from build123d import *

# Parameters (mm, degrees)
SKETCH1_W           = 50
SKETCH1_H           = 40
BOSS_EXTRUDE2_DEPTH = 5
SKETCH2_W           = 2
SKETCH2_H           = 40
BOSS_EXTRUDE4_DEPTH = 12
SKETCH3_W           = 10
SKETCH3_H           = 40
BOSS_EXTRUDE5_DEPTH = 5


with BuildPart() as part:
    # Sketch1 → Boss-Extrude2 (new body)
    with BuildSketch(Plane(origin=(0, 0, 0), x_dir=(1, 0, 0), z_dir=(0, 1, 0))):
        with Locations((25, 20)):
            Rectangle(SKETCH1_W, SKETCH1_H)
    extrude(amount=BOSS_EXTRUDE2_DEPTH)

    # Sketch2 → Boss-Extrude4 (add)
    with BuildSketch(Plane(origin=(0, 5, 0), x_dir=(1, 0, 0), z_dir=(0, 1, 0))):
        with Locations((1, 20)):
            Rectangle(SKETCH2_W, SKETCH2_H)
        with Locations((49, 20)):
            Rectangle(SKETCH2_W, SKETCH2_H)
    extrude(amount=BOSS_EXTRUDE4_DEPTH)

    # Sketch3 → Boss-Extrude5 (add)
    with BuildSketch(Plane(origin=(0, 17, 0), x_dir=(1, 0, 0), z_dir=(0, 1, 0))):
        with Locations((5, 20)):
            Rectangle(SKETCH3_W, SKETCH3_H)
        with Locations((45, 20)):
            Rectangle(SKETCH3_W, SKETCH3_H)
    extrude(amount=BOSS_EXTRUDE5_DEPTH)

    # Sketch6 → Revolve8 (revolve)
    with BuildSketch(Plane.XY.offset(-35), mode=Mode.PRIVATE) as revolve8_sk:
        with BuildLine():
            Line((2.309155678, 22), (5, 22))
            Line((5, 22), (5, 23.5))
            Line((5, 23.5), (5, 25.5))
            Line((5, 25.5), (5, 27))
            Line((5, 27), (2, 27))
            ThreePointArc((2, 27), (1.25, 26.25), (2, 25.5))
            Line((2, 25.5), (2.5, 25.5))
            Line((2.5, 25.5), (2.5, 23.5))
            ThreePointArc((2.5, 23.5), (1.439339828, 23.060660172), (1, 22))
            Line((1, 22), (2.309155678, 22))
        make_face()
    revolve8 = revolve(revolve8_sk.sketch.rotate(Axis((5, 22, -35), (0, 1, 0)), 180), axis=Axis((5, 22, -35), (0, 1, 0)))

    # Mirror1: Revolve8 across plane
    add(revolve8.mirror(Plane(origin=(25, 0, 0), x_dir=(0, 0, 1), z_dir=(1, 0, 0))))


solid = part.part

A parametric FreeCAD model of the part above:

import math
import FreeCAD as App
import Part
import Sketcher

doc = App.newDocument("Part")
params = doc.addObject("Spreadsheet::Sheet", "Params")
for row, (alias, value) in enumerate([
    ("sketch1_width", "50 mm"),
    ("sketch1_height", "40 mm"),
    ("pad1_length", "5 mm"),
    ("sketch2_width", "2 mm"),
    ("sketch2_height", "40 mm"),
    ("pad2_length", "12 mm"),
    ("sketch3_width", "10 mm"),
    ("sketch3_height", "40 mm"),
    ("pad3_length", "5 mm"),
    ("sketch4_radius", "1.5 mm"),
    ("sketch4_width", "3 mm"),
    ("sketch4_width2", "4 mm"),
    ("sketch4_height", "5 mm"),
    ("sketch4_height2", "2 mm"),
    ("revolution_angle", "360 deg"),
], start=1):
    params.set(f"A{row}", alias)
    params.set(f"B{row}", "=" + value)
    params.setAlias(f"B{row}", alias)

body = doc.addObject("PartDesign::Body", "Body")

# Sketch on XZ plane
sketch1 = body.newObject("Sketcher::SketchObject", "Sketch")
sketch1.AttachmentSupport = (doc.getObject("XZ_Plane"), [""])
sketch1.MapMode = "FlatFace"
sketch1.addGeometry([
    Part.LineSegment(App.Vector(0, -40, 0), App.Vector(0, 0, 0)),
    Part.LineSegment(App.Vector(0, 0, 0), App.Vector(50, 0, 0)),
    Part.LineSegment(App.Vector(50, 0, 0), App.Vector(50, -40, 0)),
    Part.LineSegment(App.Vector(50, -40, 0), App.Vector(0, -40, 0)),
], False)
sketch1.addConstraint([
    Sketcher.Constraint("Coincident", 0, 2, 1, 1),
    Sketcher.Constraint("Coincident", 1, 2, 2, 1),
    Sketcher.Constraint("Coincident", 2, 2, 3, 1),
    Sketcher.Constraint("Coincident", 3, 2, 0, 1),
    Sketcher.Constraint("Vertical", 0),
    Sketcher.Constraint("Horizontal", 1),
    Sketcher.Constraint("Vertical", 2),
    Sketcher.Constraint("Horizontal", 3),
    Sketcher.Constraint("Coincident", 0, 2, -1, 1),
    Sketcher.Constraint("DistanceX", 1, 1, 1, 2, 50.0),
    Sketcher.Constraint("DistanceY", 0, 1, 0, 2, 40.0),
])
sketch1.setExpression("Constraints[9]", "Params.sketch1_width")
sketch1.setExpression("Constraints[10]", "Params.sketch1_height")
pad1 = body.newObject("PartDesign::Pad", "Pad")
pad1.Profile = sketch1
pad1.setExpression("Length", "Params.pad1_length")
pad1.Reversed = True

# Sketch on XZ plane
sketch2 = body.newObject("Sketcher::SketchObject", "Sketch001")
sketch2.AttachmentSupport = (doc.getObject("XZ_Plane"), [""])
sketch2.MapMode = "FlatFace"
sketch2.AttachmentOffset = App.Placement(App.Vector(0, 0, -5), App.Rotation())
sketch2.addGeometry([
    Part.LineSegment(App.Vector(0, -40, 0), App.Vector(0, 0, 0)),  # 0
    Part.LineSegment(App.Vector(0, 0, 0), App.Vector(2, 0, 0)),  # 1
    Part.LineSegment(App.Vector(2, 0, 0), App.Vector(2, -40, 0)),  # 2
    Part.LineSegment(App.Vector(2, -40, 0), App.Vector(0, -40, 0)),  # 3
    Part.LineSegment(App.Vector(48, -40, 0), App.Vector(48, 0, 0)),  # 4
    Part.LineSegment(App.Vector(48, 0, 0), App.Vector(50, 0, 0)),  # 5
    Part.LineSegment(App.Vector(50, 0, 0), App.Vector(50, -40, 0)),  # 6
    Part.LineSegment(App.Vector(50, -40, 0), App.Vector(48, -40, 0)),  # 7
], False)
sketch2.addConstraint([
    Sketcher.Constraint("Coincident", 0, 2, 1, 1),
    Sketcher.Constraint("Coincident", 1, 2, 2, 1),
    Sketcher.Constraint("Coincident", 2, 2, 3, 1),
    Sketcher.Constraint("Coincident", 3, 2, 0, 1),
    Sketcher.Constraint("Coincident", 4, 2, 5, 1),
    Sketcher.Constraint("Coincident", 5, 2, 6, 1),
    Sketcher.Constraint("Coincident", 6, 2, 7, 1),
    Sketcher.Constraint("Coincident", 7, 2, 4, 1),
    Sketcher.Constraint("Vertical", 0),
    Sketcher.Constraint("Horizontal", 1),
    Sketcher.Constraint("Vertical", 2),
    Sketcher.Constraint("Horizontal", 3),
    Sketcher.Constraint("Vertical", 4),
    Sketcher.Constraint("Horizontal", 5),
    Sketcher.Constraint("Vertical", 6),
    Sketcher.Constraint("Horizontal", 7),
    Sketcher.Constraint("Coincident", 0, 2, -1, 1),
    Sketcher.Constraint("PointOnObject", 4, 2, -1),
    Sketcher.Constraint("Horizontal", 3, 2, 6, 2),
    Sketcher.Constraint("Equal", 3, 5),
    Sketcher.Constraint("DistanceX", 1, 1, 1, 2, 2.0),
    Sketcher.Constraint("DistanceY", 0, 1, 0, 2, 40.0),
    Sketcher.Constraint("DistanceX", -1, 1, 4, 2, 48.0),
])
sketch2.setExpression("Constraints[20]", "Params.sketch2_width")
sketch2.setExpression("Constraints[21]", "Params.sketch2_height")
pad2 = body.newObject("PartDesign::Pad", "Pad001")
pad2.Profile = sketch2
pad2.setExpression("Length", "Params.pad2_length")
pad2.Reversed = True

# Sketch on XZ plane
sketch3 = body.newObject("Sketcher::SketchObject", "Sketch002")
sketch3.AttachmentSupport = (doc.getObject("XZ_Plane"), [""])
sketch3.MapMode = "FlatFace"
sketch3.AttachmentOffset = App.Placement(App.Vector(0, 0, -17), App.Rotation())
sketch3.addGeometry([
    Part.LineSegment(App.Vector(0, -40, 0), App.Vector(0, 0, 0)),  # 0
    Part.LineSegment(App.Vector(0, 0, 0), App.Vector(10, 0, 0)),  # 1
    Part.LineSegment(App.Vector(10, 0, 0), App.Vector(10, -40, 0)),  # 2
    Part.LineSegment(App.Vector(10, -40, 0), App.Vector(0, -40, 0)),  # 3
    Part.LineSegment(App.Vector(40, -40, 0), App.Vector(40, 0, 0)),  # 4
    Part.LineSegment(App.Vector(40, 0, 0), App.Vector(50, 0, 0)),  # 5
    Part.LineSegment(App.Vector(50, 0, 0), App.Vector(50, -40, 0)),  # 6
    Part.LineSegment(App.Vector(50, -40, 0), App.Vector(40, -40, 0)),  # 7
], False)
sketch3.addConstraint([
    Sketcher.Constraint("Coincident", 0, 2, 1, 1),
    Sketcher.Constraint("Coincident", 1, 2, 2, 1),
    Sketcher.Constraint("Coincident", 2, 2, 3, 1),
    Sketcher.Constraint("Coincident", 3, 2, 0, 1),
    Sketcher.Constraint("Coincident", 4, 2, 5, 1),
    Sketcher.Constraint("Coincident", 5, 2, 6, 1),
    Sketcher.Constraint("Coincident", 6, 2, 7, 1),
    Sketcher.Constraint("Coincident", 7, 2, 4, 1),
    Sketcher.Constraint("Vertical", 0),
    Sketcher.Constraint("Horizontal", 1),
    Sketcher.Constraint("Vertical", 2),
    Sketcher.Constraint("Horizontal", 3),
    Sketcher.Constraint("Vertical", 4),
    Sketcher.Constraint("Horizontal", 5),
    Sketcher.Constraint("Vertical", 6),
    Sketcher.Constraint("Horizontal", 7),
    Sketcher.Constraint("Coincident", 0, 2, -1, 1),
    Sketcher.Constraint("PointOnObject", 4, 2, -1),
    Sketcher.Constraint("Horizontal", 3, 2, 6, 2),
    Sketcher.Constraint("Equal", 3, 5),
    Sketcher.Constraint("DistanceX", 1, 1, 1, 2, 10.0),
    Sketcher.Constraint("DistanceY", 0, 1, 0, 2, 40.0),
    Sketcher.Constraint("DistanceX", -1, 1, 4, 2, 40.0),
])
sketch3.setExpression("Constraints[20]", "Params.sketch3_width")
sketch3.setExpression("Constraints[21]", "Params.sketch3_height")
pad3 = body.newObject("PartDesign::Pad", "Pad002")
pad3.Profile = sketch3
pad3.setExpression("Length", "Params.pad3_length")
pad3.Reversed = True

# Sketch on XY plane
sketch4 = body.newObject("Sketcher::SketchObject", "Sketch003")
sketch4.AttachmentSupport = (doc.getObject("XY_Plane"), [""])
sketch4.MapMode = "FlatFace"
sketch4.AttachmentOffset = App.Placement(App.Vector(0, 0, -35), App.Rotation())
sketch4.addGeometry([
    Part.LineSegment(App.Vector(5, 22, 0), App.Vector(5, 27, 0)),  # 0
    Part.LineSegment(App.Vector(5, 27, 0), App.Vector(2, 27, 0)),  # 1
    Part.ArcOfCircle(Part.Circle(App.Vector(2, 26.2, 0), App.Vector(0, 0, 1), 0.8), math.radians(90), math.radians(270)),  # 2
    Part.LineSegment(App.Vector(2, 25.5, 0), App.Vector(2.5, 25.5, 0)),  # 3
    Part.LineSegment(App.Vector(2.5, 25.5, 0), App.Vector(2.5, 23.5, 0)),  # 4
    Part.ArcOfCircle(Part.Circle(App.Vector(2.5, 22, 0), App.Vector(0, 0, 1), 1.5), math.radians(90), math.radians(180)),  # 5
    Part.LineSegment(App.Vector(1, 22, 0), App.Vector(5, 22, 0)),  # 6
], False)
sketch4.addGeometry(Part.LineSegment(App.Vector(5, 22, 0), App.Vector(5, 27, 0)), True)  # axis
sketch4.addConstraint([
    Sketcher.Constraint("Coincident", 0, 2, 1, 1),
    Sketcher.Constraint("Tangent", 1, 2, 2, 1),
    Sketcher.Constraint("Tangent", 2, 2, 3, 1),
    Sketcher.Constraint("Coincident", 3, 2, 4, 1),
    Sketcher.Constraint("Coincident", 4, 2, 5, 1),
    Sketcher.Constraint("Coincident", 5, 2, 6, 1),
    Sketcher.Constraint("Coincident", 6, 2, 0, 1),
    Sketcher.Constraint("Vertical", 0),
    Sketcher.Constraint("Horizontal", 1),
    Sketcher.Constraint("Horizontal", 3),
    Sketcher.Constraint("Vertical", 4),
    Sketcher.Constraint("Horizontal", 6),
    Sketcher.Constraint("Vertical", 7),
    Sketcher.Constraint("Coincident", 7, 1, 6, 2),
    Sketcher.Constraint("Horizontal", 1, 2, 7, 2),
    Sketcher.Constraint("Vertical", 5, 3, 3, 2),
    Sketcher.Constraint("Radius", 5, 1.5),
    Sketcher.Constraint("DistanceX", 1, 2, 1, 1, 3.0),
    Sketcher.Constraint("DistanceX", 6, 1, 6, 2, 4.0),
    Sketcher.Constraint("DistanceY", 0, 1, 0, 2, 5.0),
    Sketcher.Constraint("DistanceY", 4, 2, 4, 1, 2.0),
    Sketcher.Constraint("Radius", 2, 0.75),
    Sketcher.Constraint("DistanceX", -1, 1, 2, 3, 2.0),
    Sketcher.Constraint("DistanceY", -1, 1, 5, 3, 22.0),
])
sketch4.setExpression("Constraints[16]", "Params.sketch4_radius")
sketch4.setExpression("Constraints[17]", "Params.sketch4_width")
sketch4.setExpression("Constraints[18]", "Params.sketch4_width2")
sketch4.setExpression("Constraints[19]", "Params.sketch4_height")
sketch4.setExpression("Constraints[20]", "Params.sketch4_height2")
revolution = body.newObject("PartDesign::Revolution", "Revolution")
revolution.Profile = sketch4
revolution.ReferenceAxis = (sketch4, ["Axis0"])
revolution.setExpression("Angle", "Params.revolution_angle")
doc.recompute()

datumplane = body.newObject("PartDesign::Plane", "DatumPlane")
datumplane.AttachmentSupport = (doc.getObject("YZ_Plane"), [""])
datumplane.MapMode = "FlatFace"
datumplane.AttachmentOffset = App.Placement(App.Vector(0, 0, 25), App.Rotation())
mirrored = body.newObject("PartDesign::Mirrored", "Mirrored")
mirrored.Originals = [revolution]
mirrored.MirrorPlane = (datumplane, [""])
body.Tip = mirrored

doc.recompute()
